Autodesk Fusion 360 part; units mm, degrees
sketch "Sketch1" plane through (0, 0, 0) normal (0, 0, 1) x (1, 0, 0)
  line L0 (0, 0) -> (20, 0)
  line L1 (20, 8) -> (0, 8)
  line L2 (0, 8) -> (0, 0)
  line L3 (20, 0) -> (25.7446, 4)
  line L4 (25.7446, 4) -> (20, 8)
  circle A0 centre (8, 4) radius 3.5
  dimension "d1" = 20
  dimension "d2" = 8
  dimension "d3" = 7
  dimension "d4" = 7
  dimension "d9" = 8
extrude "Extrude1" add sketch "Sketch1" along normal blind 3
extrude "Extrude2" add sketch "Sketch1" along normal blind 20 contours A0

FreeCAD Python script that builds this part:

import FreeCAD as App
import Part
import Sketcher
from FreeCAD import Vector

doc = App.newDocument("Part")
body = doc.addObject("PartDesign::Body", "Body")

# Sketch on XY plane
sketch1 = body.newObject("Sketcher::SketchObject", "Sketch")
sketch1.AttachmentSupport = (doc.getObject("XY_Plane"), [""])
sketch1.MapMode = "FlatFace"
sketch1.addGeometry([
    Part.LineSegment(Vector(0, 8, 0), Vector(0, 0, 0)),  # 0
    Part.LineSegment(Vector(0, 0, 0), Vector(20, 0, 0)),  # 1
    Part.LineSegment(Vector(20, 0, 0), Vector(25.7446, 4, 0)),  # 2
    Part.LineSegment(Vector(25.7446, 4, 0), Vector(20, 8, 0)),  # 3
    Part.LineSegment(Vector(20, 8, 0), Vector(0, 8, 0)),  # 4
    Part.Circle(Vector(8, 4, 0), Vector(0, 0, 1), 3.5),  # 5
], False)
sketch1.addConstraint([
    Sketcher.Constraint("Coincident", 0, 2, 1, 1),
    Sketcher.Constraint("Coincident", 1, 2, 2, 1),
    Sketcher.Constraint("Coincident", 2, 2, 3, 1),
    Sketcher.Constraint("Coincident", 3, 2, 4, 1),
    Sketcher.Constraint("Coincident", 4, 2, 0, 1),
    Sketcher.Constraint("Vertical", 0),
    Sketcher.Constraint("Horizontal", 1),
    Sketcher.Constraint("Horizontal", 4),
    Sketcher.Constraint("Coincident", 0, 2, -1, 1),
    Sketcher.Constraint("Horizontal", 5, 3, 2, 2),
    Sketcher.Constraint("Vertical", 1, 2, 3, 2),
    Sketcher.Constraint("Equal", 2, 3),
    Sketcher.Constraint("Diameter", 5, 7.0),
    Sketcher.Constraint("DistanceX", 1, 1, 1, 2, 20.0),
    Sketcher.Constraint("DistanceY", 0, 2, 0, 1, 8.0),
    Sketcher.Constraint("Distance", 2, 7.0),
    Sketcher.Constraint("DistanceX", -1, 1, 5, 3, 8.0),
])
pad1 = body.newObject("PartDesign::Pad", "Pad")
pad1.Profile = sketch1
pad1.Length = 3

# Sketch on XY plane
sketch2 = body.newObject("Sketcher::SketchObject", "Sketch001")
sketch2.AttachmentSupport = (doc.getObject("XY_Plane"), [""])
sketch2.MapMode = "FlatFace"
sketch2.addGeometry(Part.Circle(Vector(8, 4, 0), Vector(0, 0, 1), 3.5), False)
sketch2.addConstraint([
    Sketcher.Constraint("Diameter", 0, 7.0),
    Sketcher.Constraint("DistanceX", -1, 1, 0, 3, 8.0),
    Sketcher.Constraint("DistanceY", -1, 1, 0, 3, 4.0),
])
pad2 = body.newObject("PartDesign::Pad", "Pad001")
pad2.Profile = sketch2
pad2.Length = 20

doc.recompute()
